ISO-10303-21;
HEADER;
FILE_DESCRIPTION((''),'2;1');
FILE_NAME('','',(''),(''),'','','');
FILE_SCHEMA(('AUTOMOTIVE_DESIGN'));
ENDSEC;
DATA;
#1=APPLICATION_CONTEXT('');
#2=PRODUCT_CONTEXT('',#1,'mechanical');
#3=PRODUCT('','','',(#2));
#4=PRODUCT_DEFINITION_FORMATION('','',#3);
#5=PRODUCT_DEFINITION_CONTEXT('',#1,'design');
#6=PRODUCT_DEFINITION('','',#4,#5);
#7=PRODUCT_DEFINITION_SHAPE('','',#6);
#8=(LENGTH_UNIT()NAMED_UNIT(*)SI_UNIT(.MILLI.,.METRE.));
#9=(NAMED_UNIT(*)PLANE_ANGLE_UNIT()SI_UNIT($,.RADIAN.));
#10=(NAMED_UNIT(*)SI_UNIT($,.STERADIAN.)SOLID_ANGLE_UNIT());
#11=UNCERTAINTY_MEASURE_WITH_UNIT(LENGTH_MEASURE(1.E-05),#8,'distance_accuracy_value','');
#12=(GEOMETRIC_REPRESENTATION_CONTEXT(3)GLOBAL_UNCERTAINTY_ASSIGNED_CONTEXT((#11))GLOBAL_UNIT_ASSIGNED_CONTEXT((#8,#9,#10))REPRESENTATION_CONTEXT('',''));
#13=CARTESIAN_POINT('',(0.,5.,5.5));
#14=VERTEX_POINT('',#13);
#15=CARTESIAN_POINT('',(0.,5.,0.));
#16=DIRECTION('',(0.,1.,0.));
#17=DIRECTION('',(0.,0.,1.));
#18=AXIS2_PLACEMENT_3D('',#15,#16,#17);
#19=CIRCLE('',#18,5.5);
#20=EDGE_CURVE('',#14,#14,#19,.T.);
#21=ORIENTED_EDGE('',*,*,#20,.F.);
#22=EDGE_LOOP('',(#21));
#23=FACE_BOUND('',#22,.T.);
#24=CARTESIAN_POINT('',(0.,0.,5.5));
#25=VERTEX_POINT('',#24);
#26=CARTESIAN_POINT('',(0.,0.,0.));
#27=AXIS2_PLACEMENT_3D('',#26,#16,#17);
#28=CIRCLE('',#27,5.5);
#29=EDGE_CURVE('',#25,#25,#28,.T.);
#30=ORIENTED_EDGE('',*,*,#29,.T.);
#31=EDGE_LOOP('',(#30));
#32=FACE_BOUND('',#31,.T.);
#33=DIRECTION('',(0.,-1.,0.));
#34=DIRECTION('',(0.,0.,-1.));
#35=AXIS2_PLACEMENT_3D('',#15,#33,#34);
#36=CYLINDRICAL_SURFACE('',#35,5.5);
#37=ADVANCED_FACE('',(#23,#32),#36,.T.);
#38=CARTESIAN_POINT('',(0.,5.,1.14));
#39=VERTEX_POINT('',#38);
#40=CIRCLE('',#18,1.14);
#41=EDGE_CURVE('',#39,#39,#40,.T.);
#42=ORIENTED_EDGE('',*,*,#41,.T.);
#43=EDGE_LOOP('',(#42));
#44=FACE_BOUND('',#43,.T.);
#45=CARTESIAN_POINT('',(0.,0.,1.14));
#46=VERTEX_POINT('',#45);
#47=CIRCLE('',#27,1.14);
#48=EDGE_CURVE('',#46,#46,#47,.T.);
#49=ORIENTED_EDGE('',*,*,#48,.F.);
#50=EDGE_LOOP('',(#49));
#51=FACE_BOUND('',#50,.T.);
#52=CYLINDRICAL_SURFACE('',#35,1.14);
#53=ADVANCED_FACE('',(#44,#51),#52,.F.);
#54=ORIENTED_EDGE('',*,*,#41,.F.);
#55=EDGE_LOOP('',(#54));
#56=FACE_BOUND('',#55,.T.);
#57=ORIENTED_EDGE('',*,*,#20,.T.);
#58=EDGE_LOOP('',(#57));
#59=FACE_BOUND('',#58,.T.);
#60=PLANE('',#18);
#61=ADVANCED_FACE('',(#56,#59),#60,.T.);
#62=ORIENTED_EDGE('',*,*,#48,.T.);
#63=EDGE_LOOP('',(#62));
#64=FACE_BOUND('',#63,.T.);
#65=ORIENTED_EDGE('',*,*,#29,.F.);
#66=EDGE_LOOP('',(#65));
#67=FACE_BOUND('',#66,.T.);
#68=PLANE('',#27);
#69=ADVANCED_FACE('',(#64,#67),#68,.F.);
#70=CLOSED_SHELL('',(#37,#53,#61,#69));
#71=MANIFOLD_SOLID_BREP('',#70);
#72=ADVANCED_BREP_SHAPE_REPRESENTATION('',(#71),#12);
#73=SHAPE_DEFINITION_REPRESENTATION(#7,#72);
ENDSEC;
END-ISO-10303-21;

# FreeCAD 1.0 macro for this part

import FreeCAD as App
import Part
import Sketcher

V = App.Vector

doc = App.newDocument("Part")
params = doc.addObject("Spreadsheet::Sheet", "Params")
for row, (alias, value) in enumerate([
    ("sketch1_diameter", "11 mm"),
    ("sketch1_diameter2", "2.28 mm"),
    ("pad1_length", "5 mm"),
], start=1):
    params.set(f"A{row}", alias)
    params.set(f"B{row}", "=" + value)
    params.setAlias(f"B{row}", alias)

body = doc.addObject("PartDesign::Body", "Body")

# Sketch on XZ plane
sketch1 = body.newObject("Sketcher::SketchObject", "Sketch")
sketch1.AttachmentSupport = (doc.getObject("XZ_Plane"), [""])
sketch1.MapMode = "FlatFace"
sketch1.addGeometry([
    Part.Circle(V(0, 0, 0), V(0, 0, 1), 5.5),
    Part.Circle(V(0, 0, 0), V(0, 0, 1), 1.1),
], False)
sketch1.addConstraint([
    Sketcher.Constraint("Coincident", 0, 3, -1, 1),
    Sketcher.Constraint("Coincident", 1, 3, -1, 1),
    Sketcher.Constraint("Diameter", 0, 11.0),
    Sketcher.Constraint("Diameter", 1, 2.28),
])
sketch1.setExpression("Constraints[2]", "Params.sketch1_diameter")
sketch1.setExpression("Constraints[3]", "Params.sketch1_diameter2")
pad1 = body.newObject("PartDesign::Pad", "Pad")
pad1.Profile = sketch1
pad1.setExpression("Length", "Params.pad1_length")
pad1.Reversed = True

doc.recompute()
